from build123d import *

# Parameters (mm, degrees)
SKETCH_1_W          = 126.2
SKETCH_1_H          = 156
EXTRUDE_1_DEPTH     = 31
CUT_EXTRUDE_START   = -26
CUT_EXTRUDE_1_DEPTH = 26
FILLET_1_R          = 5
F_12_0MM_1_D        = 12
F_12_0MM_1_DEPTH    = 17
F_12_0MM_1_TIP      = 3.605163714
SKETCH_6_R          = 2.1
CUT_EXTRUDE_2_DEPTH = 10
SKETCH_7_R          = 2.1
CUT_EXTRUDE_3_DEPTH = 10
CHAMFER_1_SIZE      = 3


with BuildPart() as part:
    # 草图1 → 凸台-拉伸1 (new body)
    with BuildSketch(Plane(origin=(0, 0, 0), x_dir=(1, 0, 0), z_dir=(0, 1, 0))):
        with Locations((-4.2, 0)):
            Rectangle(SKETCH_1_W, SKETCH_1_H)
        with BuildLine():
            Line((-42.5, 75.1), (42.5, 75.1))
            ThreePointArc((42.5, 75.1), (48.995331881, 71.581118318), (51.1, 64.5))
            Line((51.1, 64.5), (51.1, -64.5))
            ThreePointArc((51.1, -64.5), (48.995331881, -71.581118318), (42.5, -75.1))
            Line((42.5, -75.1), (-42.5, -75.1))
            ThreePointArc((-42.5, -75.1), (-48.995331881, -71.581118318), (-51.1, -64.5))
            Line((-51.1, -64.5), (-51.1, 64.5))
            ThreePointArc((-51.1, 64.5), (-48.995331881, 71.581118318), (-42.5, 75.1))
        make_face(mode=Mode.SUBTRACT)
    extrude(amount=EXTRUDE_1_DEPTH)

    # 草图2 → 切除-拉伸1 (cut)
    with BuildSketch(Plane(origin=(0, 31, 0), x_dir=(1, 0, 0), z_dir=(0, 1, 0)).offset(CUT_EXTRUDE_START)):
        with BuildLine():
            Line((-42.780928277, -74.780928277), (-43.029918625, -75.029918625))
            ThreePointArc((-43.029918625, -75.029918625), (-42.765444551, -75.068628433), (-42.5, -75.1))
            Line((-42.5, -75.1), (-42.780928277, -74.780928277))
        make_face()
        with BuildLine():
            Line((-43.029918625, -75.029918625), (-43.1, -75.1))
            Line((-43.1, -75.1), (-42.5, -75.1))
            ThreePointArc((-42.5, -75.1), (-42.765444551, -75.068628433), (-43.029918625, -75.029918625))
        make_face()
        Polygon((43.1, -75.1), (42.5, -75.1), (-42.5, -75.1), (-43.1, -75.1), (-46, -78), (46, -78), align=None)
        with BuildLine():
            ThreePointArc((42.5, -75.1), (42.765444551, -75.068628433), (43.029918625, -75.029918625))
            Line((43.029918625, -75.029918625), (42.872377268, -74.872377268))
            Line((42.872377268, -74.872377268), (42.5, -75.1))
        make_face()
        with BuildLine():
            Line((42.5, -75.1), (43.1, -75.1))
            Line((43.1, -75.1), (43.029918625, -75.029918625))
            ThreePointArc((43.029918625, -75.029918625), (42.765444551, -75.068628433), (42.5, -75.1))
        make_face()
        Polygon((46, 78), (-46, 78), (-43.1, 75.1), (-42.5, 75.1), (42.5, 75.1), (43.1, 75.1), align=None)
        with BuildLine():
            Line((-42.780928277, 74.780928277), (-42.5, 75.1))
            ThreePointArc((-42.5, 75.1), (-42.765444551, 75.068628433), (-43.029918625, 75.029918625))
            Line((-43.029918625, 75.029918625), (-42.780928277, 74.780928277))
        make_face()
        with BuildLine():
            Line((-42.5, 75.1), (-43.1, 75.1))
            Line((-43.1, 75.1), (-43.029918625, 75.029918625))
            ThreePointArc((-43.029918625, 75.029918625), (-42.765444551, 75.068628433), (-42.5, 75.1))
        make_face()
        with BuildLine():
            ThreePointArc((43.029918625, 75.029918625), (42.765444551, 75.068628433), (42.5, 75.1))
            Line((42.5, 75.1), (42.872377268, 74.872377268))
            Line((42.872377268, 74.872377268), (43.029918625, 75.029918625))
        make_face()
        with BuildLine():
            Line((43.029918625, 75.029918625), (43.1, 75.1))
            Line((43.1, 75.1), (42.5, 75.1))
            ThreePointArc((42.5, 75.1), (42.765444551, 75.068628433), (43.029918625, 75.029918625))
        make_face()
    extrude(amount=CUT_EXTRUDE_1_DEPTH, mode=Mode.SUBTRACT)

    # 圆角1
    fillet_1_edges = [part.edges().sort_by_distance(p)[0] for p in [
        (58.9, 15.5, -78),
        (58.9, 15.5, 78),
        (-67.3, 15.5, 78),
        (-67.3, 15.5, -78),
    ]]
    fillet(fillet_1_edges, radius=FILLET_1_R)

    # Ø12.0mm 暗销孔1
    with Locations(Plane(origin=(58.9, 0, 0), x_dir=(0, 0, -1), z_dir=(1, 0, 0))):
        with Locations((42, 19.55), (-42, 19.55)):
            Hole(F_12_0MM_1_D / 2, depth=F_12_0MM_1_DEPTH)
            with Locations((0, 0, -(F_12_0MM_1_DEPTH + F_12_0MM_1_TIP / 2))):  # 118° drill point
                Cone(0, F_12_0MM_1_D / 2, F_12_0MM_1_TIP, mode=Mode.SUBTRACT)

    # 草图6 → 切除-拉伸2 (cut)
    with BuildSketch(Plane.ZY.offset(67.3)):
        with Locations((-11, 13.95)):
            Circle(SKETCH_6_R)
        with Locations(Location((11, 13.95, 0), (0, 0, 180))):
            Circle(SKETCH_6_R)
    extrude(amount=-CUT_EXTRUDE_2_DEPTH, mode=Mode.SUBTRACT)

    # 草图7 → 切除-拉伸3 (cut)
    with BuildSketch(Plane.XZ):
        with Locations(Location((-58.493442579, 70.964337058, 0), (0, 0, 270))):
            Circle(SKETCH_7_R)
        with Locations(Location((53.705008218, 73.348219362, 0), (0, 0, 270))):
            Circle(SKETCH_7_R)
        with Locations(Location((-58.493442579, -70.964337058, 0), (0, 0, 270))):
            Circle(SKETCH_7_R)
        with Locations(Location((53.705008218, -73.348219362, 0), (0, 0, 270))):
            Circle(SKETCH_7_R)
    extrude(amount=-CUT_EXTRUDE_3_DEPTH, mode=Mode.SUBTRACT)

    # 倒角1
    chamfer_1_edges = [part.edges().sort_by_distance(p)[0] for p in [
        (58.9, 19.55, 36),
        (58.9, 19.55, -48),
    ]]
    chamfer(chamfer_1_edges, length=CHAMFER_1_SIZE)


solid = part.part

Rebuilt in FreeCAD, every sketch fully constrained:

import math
import FreeCAD as App
import Part
import Sketcher
from FreeCAD import Vector
Q = App.Units.Quantity


def edges_at(feature, points):
    """Names of the edges that pass closest to the given points."""
    edges = feature.Shape.Edges
    near = lambda p: min(range(len(edges)), key=lambda i: edges[i].distToShape(Part.Vertex(*p))[0])
    return sorted({f"Edge{near(p) + 1}" for p in points})

doc = App.newDocument("Part")
body = doc.addObject("PartDesign::Body", "Body")

# Sketch on XZ plane
sketch1 = body.newObject("Sketcher::SketchObject", "Sketch")
sketch1.AttachmentSupport = (doc.getObject("XZ_Plane"), [""])
sketch1.MapMode = "FlatFace"
sketch1.addGeometry([
    Part.LineSegment(Vector(-67, -78, 0), Vector(-67, 78, 0)),  # 0
    Part.LineSegment(Vector(-67, 78, 0), Vector(59, 78, 0)),  # 1
    Part.LineSegment(Vector(59, 78, 0), Vector(59, -78, 0)),  # 2
    Part.LineSegment(Vector(59, -78, 0), Vector(-67, -78, 0)),  # 3
    Part.ArcOfCircle(Part.Circle(Vector(-42, -66, 0), Vector(0, 0, 1), 10), math.radians(174), math.radians(264)),  # 4
    Part.LineSegment(Vector(-42, -75, 0), Vector(42, -75, 0)),  # 5
    Part.ArcOfCircle(Part.Circle(Vector(42, -66, 0), Vector(0, 0, 1), 10), math.radians(-84), math.radians(6)),  # 6
    Part.LineSegment(Vector(51, -64, 0), Vector(51, 64, 0)),  # 7
    Part.ArcOfCircle(Part.Circle(Vector(42, 66, 0), Vector(0, 0, 1), 10), math.radians(-6), math.radians(84)),  # 8
    Part.LineSegment(Vector(42, 75, 0), Vector(-42, 75, 0)),  # 9
    Part.ArcOfCircle(Part.Circle(Vector(-42, 66, 0), Vector(0, 0, 1), 10), math.radians(96), math.radians(186)),  # 10
    Part.LineSegment(Vector(-51, 64, 0), Vector(-51, -64, 0)),  # 11
], False)
sketch1.addConstraint([
    Sketcher.Constraint("Coincident", 0, 2, 1, 1),
    Sketcher.Constraint("Coincident", 1, 2, 2, 1),
    Sketcher.Constraint("Coincident", 2, 2, 3, 1),
    Sketcher.Constraint("Coincident", 3, 2, 0, 1),
    Sketcher.Constraint("Coincident", 4, 2, 5, 1),
    Sketcher.Constraint("Coincident", 5, 2, 6, 1),
    Sketcher.Constraint("Coincident", 6, 2, 7, 1),
    Sketcher.Constraint("Coincident", 7, 2, 8, 1),
    Sketcher.Constraint("Coincident", 8, 2, 9, 1),
    Sketcher.Constraint("Coincident", 9, 2, 10, 1),
    Sketcher.Constraint("Coincident", 10, 2, 11, 1),
    Sketcher.Constraint("Coincident", 11, 2, 4, 1),
    Sketcher.Constraint("Vertical", 0),
    Sketcher.Constraint("Horizontal", 1),
    Sketcher.Constraint("Vertical", 2),
    Sketcher.Constraint("Horizontal", 3),
    Sketcher.Constraint("Horizontal", 5),
    Sketcher.Constraint("Vertical", 7),
    Sketcher.Constraint("Horizontal", 9),
    Sketcher.Constraint("Vertical", 11),
    Sketcher.Constraint("Equal", 4, 6),
    Sketcher.Constraint("Equal", 6, 8),
    Sketcher.Constraint("Equal", 8, 10),
    Sketcher.Constraint("Symmetric", 4, 3, 8, 3, -1, 1),
    Sketcher.Constraint("Symmetric", 6, 3, 10, 3, -1, 1),
    Sketcher.Constraint("Symmetric", 4, 3, 6, 3, -2),
    Sketcher.Constraint("Horizontal", 7, 2, 10, 2),
    Sketcher.Constraint("Vertical", 5, 2, 8, 2),
    Sketcher.Constraint("DistanceX", 5, 1, 5, 2, Q("85 mm")),
    Sketcher.Constraint("DistanceY", 0, 1, 0, 2, Q("156 mm")),
    Sketcher.Constraint("DistanceY", 7, 1, 7, 2, Q("129 mm")),
    Sketcher.Constraint("DistanceX", 1, 1, 1, 2, Q("126.2 mm")),
    Sketcher.Constraint("DistanceY", -1, 1, 0, 2, Q("78 mm")),
    Sketcher.Constraint("DistanceX", 4, 3, 6, 3, Q("83 mm")),
    Sketcher.Constraint("DistanceY", 6, 3, 8, 3, Q("131 mm")),
    Sketcher.Constraint("DistanceX", 0, 2, -1, 1, Q("67.3 mm")),
    Sketcher.Constraint("DistanceY", 4, 2, -1, 1, Q("75.1 mm")),
])
pad1 = body.newObject("PartDesign::Pad", "Pad")
pad1.Profile = sketch1
pad1.Length = 31
pad1.Reversed = True

# Sketch on XZ plane
sketch2 = body.newObject("Sketcher::SketchObject", "Sketch001")
sketch2.AttachmentSupport = (doc.getObject("XZ_Plane"), [""])
sketch2.MapMode = "FlatFace"
sketch2.AttachmentOffset = App.Placement(Vector(0, 0, -5), App.Rotation())
sketch2.addGeometry([
    Part.LineSegment(Vector(-42.78, 74.78, 0), Vector(-46, 78, 0)),  # 0
    Part.LineSegment(Vector(-46, 78, 0), Vector(46, 78, 0)),  # 1
    Part.LineSegment(Vector(46, 78, 0), Vector(42.87, 74.87, 0)),  # 2
    Part.LineSegment(Vector(42.87, 74.87, 0), Vector(42.5, 75.1, 0)),  # 3
    Part.LineSegment(Vector(42.5, 75.1, 0), Vector(-42.5, 75.1, 0)),  # 4
    Part.LineSegment(Vector(-42.5, 75.1, 0), Vector(-42.78, 74.78, 0)),  # 5
    Part.LineSegment(Vector(46, -78, 0), Vector(-46, -78, 0)),  # 6
    Part.LineSegment(Vector(-46, -78, 0), Vector(-42.78, -74.78, 0)),  # 7
    Part.LineSegment(Vector(-42.78, -74.78, 0), Vector(-42.5, -75.1, 0)),  # 8
    Part.LineSegment(Vector(-42.5, -75.1, 0), Vector(42.5, -75.1, 0)),  # 9
    Part.LineSegment(Vector(42.5, -75.1, 0), Vector(42.87, -74.87, 0)),  # 10
    Part.LineSegment(Vector(42.87, -74.87, 0), Vector(46, -78, 0)),  # 11
], False)
sketch2.addConstraint([
    Sketcher.Constraint("Coincident", 0, 2, 1, 1),
    Sketcher.Constraint("Coincident", 1, 2, 2, 1),
    Sketcher.Constraint("Coincident", 2, 2, 3, 1),
    Sketcher.Constraint("Coincident", 3, 2, 4, 1),
    Sketcher.Constraint("Coincident", 4, 2, 5, 1),
    Sketcher.Constraint("Coincident", 5, 2, 0, 1),
    Sketcher.Constraint("Coincident", 6, 2, 7, 1),
    Sketcher.Constraint("Coincident", 7, 2, 8, 1),
    Sketcher.Constraint("Coincident", 8, 2, 9, 1),
    Sketcher.Constraint("Coincident", 9, 2, 10, 1),
    Sketcher.Constraint("Coincident", 10, 2, 11, 1),
    Sketcher.Constraint("Coincident", 11, 2, 6, 1),
    Sketcher.Constraint("Horizontal", 1),
    Sketcher.Constraint("Horizontal", 4),
    Sketcher.Constraint("Horizontal", 6),
    Sketcher.Constraint("Horizontal", 9),
    Sketcher.Constraint("Symmetric", 1, 2, 6, 2, -1, 1),
    Sketcher.Constraint("Symmetric", 3, 2, 8, 2, -1, 1),
    Sketcher.Constraint("Symmetric", 5, 2, 7, 2, -1),
    Sketcher.Constraint("Symmetric", 2, 2, 10, 2, -1),
    Sketcher.Constraint("Perpendicular", 0, 2),
    Sketcher.Constraint("Parallel", 2, 7),
    Sketcher.Constraint("Perpendicular", 7, 11),
    Sketcher.Constraint("Vertical", 0, 2, 6, 2),
    Sketcher.Constraint("Vertical", 4, 2, 8, 2),
    Sketcher.Constraint("Vertical", 3, 2, 9, 2),
    Sketcher.Constraint("DistanceX", 1, 1, 1, 2, Q("92 mm")),
    Sketcher.Constraint("DistanceX", 4, 2, 4, 1, Q("85 mm")),
    Sketcher.Constraint("DistanceY", -1, 1, 0, 2, Q("78 mm")),
    Sketcher.Constraint("DistanceY", -1, 1, 3, 2, Q("75.1 mm")),
    Sketcher.Constraint("Distance", 5, Q("0.425121 mm")),
    Sketcher.Constraint("DistanceY", 5, 2, 2, 2, Q("0.091449 mm")),
])
pocket1 = body.newObject("PartDesign::Pocket", "Pocket")
pocket1.Profile = sketch2
pocket1.Length = 26
doc.recompute()

fillet = body.newObject("PartDesign::Fillet", "Fillet")
fillet.Base = (pocket1, edges_at(pocket1, [
    (58.9, 15.5, -78),
    (58.9, 15.5, 78),
    (-67.3, 15.5, 78),
    (-67.3, 15.5, -78),
]))
fillet.Radius = 5

# Sketch on YZ plane
sketch3 = body.newObject("Sketcher::SketchObject", "Sketch002")
sketch3.AttachmentSupport = (doc.getObject("YZ_Plane"), [""])
sketch3.MapMode = "FlatFace"
sketch3.AttachmentOffset = App.Placement(Vector(0, 0, 58.9), App.Rotation())
sketch3.addGeometry([
    Part.Circle(Vector(20, -42, 0), Vector(0, 0, 1), 6),
    Part.Circle(Vector(20, 42, 0), Vector(0, 0, 1), 6),
], False)
sketch3.addConstraint([
    Sketcher.Constraint("Equal", 0, 1),
    Sketcher.Constraint("Symmetric", 0, 3, 1, 3, -1),
    Sketcher.Constraint("Diameter", 0, Q("12 mm")),
    Sketcher.Constraint("DistanceY", 0, 3, -1, 1, Q("42 mm")),
    Sketcher.Constraint("DistanceX", -1, 1, 0, 3, Q("19.55 mm")),
])
doc.recompute()
hole = body.newObject("PartDesign::Hole", "Hole")
hole.Profile = sketch3
hole.ThreadType = "None"
hole.Diameter = 12
hole.DepthType = "Dimension"
hole.Depth = 17
hole.DrillPoint = "Angled"
hole.DrillPointAngle = 118

# Sketch on YZ plane
sketch4 = body.newObject("Sketcher::SketchObject", "Sketch003")
sketch4.AttachmentSupport = (doc.getObject("YZ_Plane"), [""])
sketch4.MapMode = "FlatFace"
sketch4.AttachmentOffset = App.Placement(Vector(0, 0, -67.3), App.Rotation())
sketch4.addGeometry([
    Part.Circle(Vector(13.9, -11, 0), Vector(0, 0, 1), 2.1),
    Part.Circle(Vector(13.9, 11, 0), Vector(0, 0, 1), 2.1),
], False)
sketch4.addConstraint([
    Sketcher.Constraint("Equal", 0, 1),
    Sketcher.Constraint("Symmetric", 0, 3, 1, 3, -1),
    Sketcher.Constraint("Diameter", 0, Q("4.2 mm")),
    Sketcher.Constraint("DistanceY", 0, 3, -1, 1, Q("11 mm")),
    Sketcher.Constraint("DistanceX", -1, 1, 0, 3, Q("13.95 mm")),
])
pocket2 = body.newObject("PartDesign::Pocket", "Pocket001")
pocket2.Profile = sketch4
pocket2.Length = 10
pocket2.Reversed = True

# Sketch on XZ plane
sketch5 = body.newObject("Sketcher::SketchObject", "Sketch004")
sketch5.AttachmentSupport = (doc.getObject("XZ_Plane"), [""])
sketch5.MapMode = "FlatFace"
sketch5.addGeometry([
    Part.Circle(Vector(-58.5, 71, 0), Vector(0, 0, 1), 2.1),
    Part.Circle(Vector(53.7, 73.3, 0), Vector(0, 0, 1), 2.1),
    Part.Circle(Vector(-58.5, -71, 0), Vector(0, 0, 1), 2.1),
    Part.Circle(Vector(53.7, -73.3, 0), Vector(0, 0, 1), 2.1),
], False)
sketch5.addConstraint([
    Sketcher.Constraint("Equal", 0, 1),
    Sketcher.Constraint("Equal", 1, 2),
    Sketcher.Constraint("Equal", 2, 3),
    Sketcher.Constraint("Symmetric", 0, 3, 2, 3, -1),
    Sketcher.Constraint("Symmetric", 1, 3, 3, 3, -1),
    Sketcher.Constraint("Diameter", 0, Q("4.2 mm")),
    Sketcher.Constraint("DistanceX", -1, 1, 1, 3, Q("53.705008 mm")),
    Sketcher.Constraint("DistanceY", -1, 1, 1, 3, Q("73.348219 mm")),
    Sketcher.Constraint("DistanceX", 0, 3, 1, 3, Q("112.198451 mm")),
    Sketcher.Constraint("DistanceY", -1, 1, 0, 3, Q("70.964337 mm")),
])
pocket3 = body.newObject("PartDesign::Pocket", "Pocket002")
pocket3.Profile = sketch5
pocket3.Length = 10
doc.recompute()

chamfer = body.newObject("PartDesign::Chamfer", "Chamfer")
chamfer.Base = (pocket3, edges_at(pocket3, [(58.9, 19.55, 36), (58.9, 19.55, -48)]))
chamfer.Size = 3

doc.recompute()
